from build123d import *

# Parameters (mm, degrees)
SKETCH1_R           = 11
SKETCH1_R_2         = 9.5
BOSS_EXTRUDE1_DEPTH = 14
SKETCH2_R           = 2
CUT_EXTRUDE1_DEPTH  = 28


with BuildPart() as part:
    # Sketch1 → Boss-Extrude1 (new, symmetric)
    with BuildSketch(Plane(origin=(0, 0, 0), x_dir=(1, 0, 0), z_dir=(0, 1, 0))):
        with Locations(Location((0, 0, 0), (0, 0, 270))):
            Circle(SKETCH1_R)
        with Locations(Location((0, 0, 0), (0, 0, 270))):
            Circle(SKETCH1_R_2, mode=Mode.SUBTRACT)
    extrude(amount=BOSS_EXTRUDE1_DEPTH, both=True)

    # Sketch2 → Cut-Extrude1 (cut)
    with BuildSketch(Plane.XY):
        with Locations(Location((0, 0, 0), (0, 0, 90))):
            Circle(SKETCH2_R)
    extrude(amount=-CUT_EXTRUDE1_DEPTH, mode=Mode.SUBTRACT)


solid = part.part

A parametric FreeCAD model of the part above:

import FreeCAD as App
import Part
import Sketcher
from FreeCAD import Vector

doc = App.newDocument("Part")
body = doc.addObject("PartDesign::Body", "Body")

# Sketch on XZ plane
sketch1 = doc.addObject("Sketcher::SketchObject", "Sketch")
body.addObject(sketch1)
sketch1.AttachmentSupport = (doc.XZ_Plane, [""])
sketch1.MapMode = "FlatFace"
sketch1.addGeometry(Part.Circle(Vector(0, 0, 0), Vector(0, 0, 1), 11), False)
sketch1.addGeometry(Part.Circle(Vector(0, 0, 0), Vector(0, 0, 1), 10), False)
sketch1.addConstraint(Sketcher.Constraint("Coincident", 0, 3, -1, 1))
sketch1.addConstraint(Sketcher.Constraint("Coincident", 1, 3, -1, 1))
sketch1.addConstraint(Sketcher.Constraint("Diameter", 0, 22.0))
sketch1.addConstraint(Sketcher.Constraint("Diameter", 1, 19.0))
pad1 = doc.addObject("PartDesign::Pad", "Pad")
body.addObject(pad1)
pad1.Profile = sketch1
pad1.Length = 28
pad1.Midplane = True

# Sketch on XY plane
sketch2 = doc.addObject("Sketcher::SketchObject", "Sketch001")
body.addObject(sketch2)
sketch2.AttachmentSupport = (doc.XY_Plane, [""])
sketch2.MapMode = "FlatFace"
sketch2.addGeometry(Part.Circle(Vector(0, 0, 0), Vector(0, 0, 1), 2), False)
sketch2.addConstraint(Sketcher.Constraint("Coincident", 0, 3, -1, 1))
sketch2.addConstraint(Sketcher.Constraint("Diameter", 0, 4.0))
pocket1 = doc.addObject("PartDesign::Pocket", "Pocket")
body.addObject(pocket1)
pocket1.Profile = sketch2
pocket1.Length = 28

doc.recompute()
